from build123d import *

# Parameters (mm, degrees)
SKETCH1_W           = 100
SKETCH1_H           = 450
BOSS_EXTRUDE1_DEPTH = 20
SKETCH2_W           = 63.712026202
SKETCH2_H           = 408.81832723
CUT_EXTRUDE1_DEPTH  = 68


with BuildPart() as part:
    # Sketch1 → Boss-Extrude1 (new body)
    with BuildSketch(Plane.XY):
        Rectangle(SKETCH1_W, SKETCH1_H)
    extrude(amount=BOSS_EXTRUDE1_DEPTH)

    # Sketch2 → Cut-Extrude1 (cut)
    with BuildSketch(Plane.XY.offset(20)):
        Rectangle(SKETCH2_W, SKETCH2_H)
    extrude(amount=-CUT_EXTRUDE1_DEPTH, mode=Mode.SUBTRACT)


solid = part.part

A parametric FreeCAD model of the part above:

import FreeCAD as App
import Part
import Sketcher
from FreeCAD import Vector

doc = App.newDocument("Part")
body = doc.addObject("PartDesign::Body", "Body")

sketch1 = body.newObject("Sketcher::SketchObject", "Sketch")
sketch1.AttachmentSupport = (doc.getObject("XY_Plane"), [""])
sketch1.MapMode = "FlatFace"
sketch1.addGeometry([
    Part.LineSegment(Vector(-50, 225, 0), Vector(-50, -225, 0)),
    Part.LineSegment(Vector(-50, -225, 0), Vector(50, -225, 0)),
    Part.LineSegment(Vector(50, -225, 0), Vector(50, 225, 0)),
    Part.LineSegment(Vector(50, 225, 0), Vector(-50, 225, 0)),
], False)
sketch1.addConstraint([
    Sketcher.Constraint("Coincident", 0, 2, 1, 1),
    Sketcher.Constraint("Coincident", 1, 2, 2, 1),
    Sketcher.Constraint("Coincident", 2, 2, 3, 1),
    Sketcher.Constraint("Coincident", 3, 2, 0, 1),
    Sketcher.Constraint("Vertical", 0),
    Sketcher.Constraint("Horizontal", 1),
    Sketcher.Constraint("Vertical", 2),
    Sketcher.Constraint("Horizontal", 3),
    Sketcher.Constraint("Symmetric", 0, 2, 2, 2, -1, 1),
    Sketcher.Constraint("DistanceX", 1, 1, 1, 2, 100.0),
    Sketcher.Constraint("DistanceY", 0, 2, 0, 1, 450.0),
])
pad1 = body.newObject("PartDesign::Pad", "Pad")
pad1.Profile = sketch1
pad1.Length = 20

sketch2 = body.newObject("Sketcher::SketchObject", "Sketch001")
sketch2.AttachmentSupport = (doc.getObject("XY_Plane"), [""])
sketch2.MapMode = "FlatFace"
sketch2.AttachmentOffset = App.Placement(Vector(0, 0, 20), App.Rotation())
sketch2.addGeometry([
    Part.LineSegment(Vector(-31.856013, 204.409164, 0), Vector(-31.856013, -204.409164, 0)),
    Part.LineSegment(Vector(-31.856013, -204.409164, 0), Vector(31.856013, -204.409164, 0)),
    Part.LineSegment(Vector(31.856013, -204.409164, 0), Vector(31.856013, 204.409164, 0)),
    Part.LineSegment(Vector(31.856013, 204.409164, 0), Vector(-31.856013, 204.409164, 0)),
], False)
sketch2.addConstraint([
    Sketcher.Constraint("Coincident", 0, 2, 1, 1),
    Sketcher.Constraint("Coincident", 1, 2, 2, 1),
    Sketcher.Constraint("Coincident", 2, 2, 3, 1),
    Sketcher.Constraint("Coincident", 3, 2, 0, 1),
    Sketcher.Constraint("Vertical", 0),
    Sketcher.Constraint("Horizontal", 1),
    Sketcher.Constraint("Vertical", 2),
    Sketcher.Constraint("Horizontal", 3),
    Sketcher.Constraint("Symmetric", 0, 2, 2, 2, -1, 1),
    Sketcher.Constraint("DistanceX", 1, 1, 1, 2, 63.712026),
    Sketcher.Constraint("DistanceY", 0, 2, 0, 1, 408.818327),
])
pocket1 = body.newObject("PartDesign::Pocket", "Pocket")
pocket1.Profile = sketch2
pocket1.Length = 68

doc.recompute()
